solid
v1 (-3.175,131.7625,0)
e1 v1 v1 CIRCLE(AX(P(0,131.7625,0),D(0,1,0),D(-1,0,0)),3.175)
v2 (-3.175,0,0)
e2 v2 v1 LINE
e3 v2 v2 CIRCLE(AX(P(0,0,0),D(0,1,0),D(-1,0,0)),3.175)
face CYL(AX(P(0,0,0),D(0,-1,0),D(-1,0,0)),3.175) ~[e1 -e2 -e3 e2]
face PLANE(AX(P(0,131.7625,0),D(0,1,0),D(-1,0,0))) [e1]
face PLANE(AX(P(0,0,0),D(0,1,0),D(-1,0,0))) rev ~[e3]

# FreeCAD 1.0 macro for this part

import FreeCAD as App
import Part
import Sketcher
Q = App.Units.Quantity

doc = App.newDocument("Part")
body = doc.addObject("PartDesign::Body", "Body")

# Sketch on XZ plane
sketch1 = body.newObject("Sketcher::SketchObject", "Sketch")
sketch1.AttachmentSupport = (doc.getObject("XZ_Plane"), [""])
sketch1.MapMode = "FlatFace"
sketch1.addGeometry(Part.Circle(App.Vector(0, 0, 0), App.Vector(0, 0, 1), 3.2), False)
sketch1.addConstraint([
    Sketcher.Constraint("Coincident", 0, 3, -1, 1),
    Sketcher.Constraint("Diameter", 0, Q("0.25 in")),
])
pad1 = body.newObject("PartDesign::Pad", "Pad")
pad1.Profile = sketch1
pad1.Length = Q("5.1875 in")
pad1.Reversed = True

doc.recompute()
